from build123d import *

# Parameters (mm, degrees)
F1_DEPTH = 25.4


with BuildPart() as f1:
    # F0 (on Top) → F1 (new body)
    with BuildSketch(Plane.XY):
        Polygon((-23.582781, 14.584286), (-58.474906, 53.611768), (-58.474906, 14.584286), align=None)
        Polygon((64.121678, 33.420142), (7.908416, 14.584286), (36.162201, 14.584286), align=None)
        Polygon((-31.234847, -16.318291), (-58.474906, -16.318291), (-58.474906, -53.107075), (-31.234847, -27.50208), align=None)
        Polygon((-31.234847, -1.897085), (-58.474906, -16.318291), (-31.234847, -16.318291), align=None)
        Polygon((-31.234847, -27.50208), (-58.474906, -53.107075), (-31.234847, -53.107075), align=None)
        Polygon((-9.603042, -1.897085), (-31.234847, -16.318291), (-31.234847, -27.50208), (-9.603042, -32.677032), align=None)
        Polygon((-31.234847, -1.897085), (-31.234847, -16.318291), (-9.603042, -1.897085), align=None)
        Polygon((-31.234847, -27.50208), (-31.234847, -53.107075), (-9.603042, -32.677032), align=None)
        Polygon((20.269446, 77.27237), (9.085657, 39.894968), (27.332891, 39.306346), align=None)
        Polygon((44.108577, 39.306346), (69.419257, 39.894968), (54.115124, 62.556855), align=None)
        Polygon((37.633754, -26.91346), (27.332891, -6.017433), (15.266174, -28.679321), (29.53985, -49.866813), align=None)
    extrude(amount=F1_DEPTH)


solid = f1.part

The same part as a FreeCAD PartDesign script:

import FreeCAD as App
import Part
import Sketcher

V = App.Vector
Q = App.Units.Quantity

doc = App.newDocument("Part")
params = doc.addObject("Spreadsheet::Sheet", "Params")
for row, (alias, value) in enumerate([
    ("pad1_length", "1 in"),
], start=1):
    params.set(f"A{row}", alias)
    params.set(f"B{row}", "=" + value)
    params.setAlias(f"B{row}", alias)

body = doc.addObject("PartDesign::Body", "Body")
body.AllowCompound = True

# Sketch on XY plane
sketch1 = doc.addObject("Sketcher::SketchObject", "Sketch")
body.addObject(sketch1)
sketch1.AttachmentSupport = (doc.XY_Plane, [""])
sketch1.MapMode = "FlatFace"
sketch1.addGeometry([
    Part.LineSegment(V(-24, 15, 0), V(-58, 54, 0)),  # 0
    Part.LineSegment(V(-58, 54, 0), V(-58, 15, 0)),  # 1
    Part.LineSegment(V(-58, 15, 0), V(-24, 15, 0)),  # 2
    Part.LineSegment(V(64, 33, 0), V(8, 15, 0)),  # 3
    Part.LineSegment(V(8, 15, 0), V(36, 15, 0)),  # 4
    Part.LineSegment(V(36, 15, 0), V(64, 33, 0)),  # 5
    Part.LineSegment(V(-58, -16, 0), V(-58, -53, 0)),  # 6
    Part.LineSegment(V(-58, -53, 0), V(-31, -53, 0)),  # 7
    Part.LineSegment(V(-31, -53, 0), V(-10, -33, 0)),  # 8
    Part.LineSegment(V(-10, -33, 0), V(-10, -2, 0)),  # 9
    Part.LineSegment(V(-10, -2, 0), V(-31, -2, 0)),  # 10
    Part.LineSegment(V(-31, -2, 0), V(-58, -16, 0)),  # 11
    Part.LineSegment(V(20, 77, 0), V(9, 40, 0)),  # 12
    Part.LineSegment(V(9, 40, 0), V(27, 39, 0)),  # 13
    Part.LineSegment(V(27, 39, 0), V(20, 77, 0)),  # 14
    Part.LineSegment(V(44, 39, 0), V(69, 40, 0)),  # 15
    Part.LineSegment(V(69, 40, 0), V(54, 63, 0)),  # 16
    Part.LineSegment(V(54, 63, 0), V(44, 39, 0)),  # 17
    Part.LineSegment(V(38, -27, 0), V(27, -6, 0)),  # 18
    Part.LineSegment(V(27, -6, 0), V(15, -29, 0)),  # 19
    Part.LineSegment(V(15, -29, 0), V(30, -50, 0)),  # 20
    Part.LineSegment(V(30, -50, 0), V(38, -27, 0)),  # 21
], False)
sketch1.addConstraint([
    Sketcher.Constraint("Coincident", 0, 2, 1, 1),
    Sketcher.Constraint("Coincident", 1, 2, 2, 1),
    Sketcher.Constraint("Coincident", 2, 2, 0, 1),
    Sketcher.Constraint("Coincident", 3, 2, 4, 1),
    Sketcher.Constraint("Coincident", 4, 2, 5, 1),
    Sketcher.Constraint("Coincident", 5, 2, 3, 1),
    Sketcher.Constraint("Coincident", 6, 2, 7, 1),
    Sketcher.Constraint("Coincident", 7, 2, 8, 1),
    Sketcher.Constraint("Coincident", 8, 2, 9, 1),
    Sketcher.Constraint("Coincident", 9, 2, 10, 1),
    Sketcher.Constraint("Coincident", 10, 2, 11, 1),
    Sketcher.Constraint("Coincident", 11, 2, 6, 1),
    Sketcher.Constraint("Coincident", 12, 2, 13, 1),
    Sketcher.Constraint("Coincident", 13, 2, 14, 1),
    Sketcher.Constraint("Coincident", 14, 2, 12, 1),
    Sketcher.Constraint("Coincident", 15, 2, 16, 1),
    Sketcher.Constraint("Coincident", 16, 2, 17, 1),
    Sketcher.Constraint("Coincident", 17, 2, 15, 1),
    Sketcher.Constraint("Coincident", 18, 2, 19, 1),
    Sketcher.Constraint("Coincident", 19, 2, 20, 1),
    Sketcher.Constraint("Coincident", 20, 2, 21, 1),
    Sketcher.Constraint("Coincident", 21, 2, 18, 1),
    Sketcher.Constraint("Vertical", 1),
    Sketcher.Constraint("Horizontal", 2),
    Sketcher.Constraint("Horizontal", 4),
    Sketcher.Constraint("Vertical", 6),
    Sketcher.Constraint("Horizontal", 7),
    Sketcher.Constraint("Vertical", 9),
    Sketcher.Constraint("Horizontal", 10),
    Sketcher.Constraint("Perpendicular", 5, 20),
    Sketcher.Constraint("Horizontal", 2, 2, 3, 2),
    Sketcher.Constraint("Horizontal", 12, 2, 15, 2),
    Sketcher.Constraint("Horizontal", 13, 2, 17, 2),
    Sketcher.Constraint("Vertical", 1, 2, 6, 2),
    Sketcher.Constraint("Vertical", 7, 2, 10, 2),
    Sketcher.Constraint("Vertical", 13, 2, 18, 2),
    Sketcher.Constraint("Distance", 14, Q("38.617499 mm")),
    Sketcher.Constraint("DistanceX", 7, 1, 7, 2, Q("27.240059 mm")),
    Sketcher.Constraint("DistanceX", -1, 1, 4, 2, Q("36.162201 mm")),
    Sketcher.Constraint("DistanceX", 9, 2, 12, 2, Q("18.688699 mm")),
    Sketcher.Constraint("DistanceY", 12, 2, 14, 2, Q("37.377402 mm")),
    Sketcher.Constraint("DistanceX", 12, 2, 15, 2, Q("60.3336 mm")),
    Sketcher.Constraint("DistanceX", 17, 2, 5, 2, Q("20.013101 mm")),
    Sketcher.Constraint("DistanceY", 8, 2, 18, 2, Q("26.659599 mm")),
    Sketcher.Constraint("Distance", 5, Q("33.712339 mm")),
    Sketcher.Constraint("Distance", 11, Q("30.82194 mm")),
    Sketcher.Constraint("Distance", 17, Q("25.312391 mm")),
    Sketcher.Constraint("Distance", 20, Q("25.546969 mm")),
    Sketcher.Constraint("DistanceX", 2, 1, 2, 2, Q("34.892125 mm")),
    Sketcher.Constraint("DistanceX", 4, 1, 4, 2, Q("28.253785 mm")),
    Sketcher.Constraint("DistanceX", 10, 2, 10, 1, Q("21.631805 mm")),
    Sketcher.Constraint("DistanceY", 1, 2, 1, 1, Q("39.027482 mm")),
    Sketcher.Constraint("DistanceY", 6, 2, 6, 1, Q("36.788784 mm")),
    Sketcher.Constraint("DistanceY", 9, 1, 9, 2, Q("30.779947 mm")),
    Sketcher.Constraint("DistanceX", 2, 2, -1, 1, Q("23.582781 mm")),
    Sketcher.Constraint("DistanceX", -1, 1, 5, 2, Q("64.121678 mm")),
    Sketcher.Constraint("DistanceY", -1, 1, 5, 2, Q("33.420142 mm")),
    Sketcher.Constraint("DistanceY", 8, 2, -1, 1, Q("32.677032 mm")),
    Sketcher.Constraint("DistanceX", -1, 1, 13, 2, Q("27.332891 mm")),
    Sketcher.Constraint("DistanceY", -1, 1, 14, 2, Q("77.27237 mm")),
    Sketcher.Constraint("DistanceY", 19, 2, -1, 1, Q("28.679321 mm")),
    Sketcher.Constraint("DistanceX", -1, 1, 20, 2, Q("29.53985 mm")),
    Sketcher.Constraint("DistanceY", 21, 2, -1, 1, Q("26.91346 mm")),
    Sketcher.Constraint("DistanceY", 4, 2, 13, 2, Q("24.72206 mm")),
    Sketcher.Constraint("DistanceY", 13, 2, 16, 2, Q("23.250509 mm")),
    Sketcher.Constraint("DistanceX", 19, 2, 21, 2, Q("22.36758 mm")),
])
pad1 = doc.addObject("PartDesign::Pad", "Pad")
body.addObject(pad1)
pad1.Profile = sketch1
pad1.setExpression("Length", "Params.pad1_length")

doc.recompute()
